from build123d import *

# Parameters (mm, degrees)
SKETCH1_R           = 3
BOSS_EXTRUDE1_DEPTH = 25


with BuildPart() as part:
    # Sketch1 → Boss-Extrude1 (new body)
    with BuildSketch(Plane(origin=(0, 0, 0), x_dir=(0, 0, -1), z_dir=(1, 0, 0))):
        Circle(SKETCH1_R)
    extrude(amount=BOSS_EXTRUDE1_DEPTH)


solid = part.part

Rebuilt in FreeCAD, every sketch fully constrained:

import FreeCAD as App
import Part
import Sketcher

V = App.Vector

doc = App.newDocument("Part")
params = doc.addObject("Spreadsheet::Sheet", "Params")
for row, (alias, value) in enumerate([
    ("sketch1_diameter", "6 mm"),
    ("pad1_length", "25 mm"),
], start=1):
    params.set(f"A{row}", alias)
    params.set(f"B{row}", "=" + value)
    params.setAlias(f"B{row}", alias)

body = doc.addObject("PartDesign::Body", "Body")

# Sketch on YZ plane
sketch1 = body.newObject("Sketcher::SketchObject", "Sketch")
sketch1.AttachmentSupport = (doc.getObject("YZ_Plane"), [""])
sketch1.MapMode = "FlatFace"
sketch1.addGeometry(Part.Circle(V(0, 0, 0), V(0, 0, 1), 3), False)
sketch1.addConstraint(Sketcher.Constraint("Coincident", 0, 3, -1, 1))
sketch1.addConstraint(Sketcher.Constraint("Diameter", 0, 6.0))
sketch1.setExpression("Constraints[1]", "Params.sketch1_diameter")
pad1 = body.newObject("PartDesign::Pad", "Pad")
pad1.Profile = sketch1
pad1.setExpression("Length", "Params.pad1_length")

doc.recompute()
